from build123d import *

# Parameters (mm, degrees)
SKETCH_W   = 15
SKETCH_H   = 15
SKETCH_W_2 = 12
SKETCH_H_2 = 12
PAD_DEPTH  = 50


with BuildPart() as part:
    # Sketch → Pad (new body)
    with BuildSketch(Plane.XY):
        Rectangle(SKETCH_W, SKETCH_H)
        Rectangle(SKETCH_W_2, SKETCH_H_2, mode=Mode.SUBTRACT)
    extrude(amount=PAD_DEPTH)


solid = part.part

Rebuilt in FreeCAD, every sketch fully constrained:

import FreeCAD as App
import Part
import Sketcher
Q = App.Units.Quantity

doc = App.newDocument("Part")
body = doc.addObject("PartDesign::Body", "Body")

# Sketch on XY plane
sketch1 = doc.addObject("Sketcher::SketchObject", "Sketch")
body.addObject(sketch1)
sketch1.AttachmentSupport = (doc.XY_Plane, [""])
sketch1.MapMode = "FlatFace"
sketch1.addGeometry(Part.LineSegment(App.Vector(-8, 8, 0), App.Vector(-8, -8, 0)), False)
sketch1.addGeometry(Part.LineSegment(App.Vector(-8, -8, 0), App.Vector(8, -8, 0)), False)
sketch1.addGeometry(Part.LineSegment(App.Vector(8, -8, 0), App.Vector(8, 8, 0)), False)
sketch1.addGeometry(Part.LineSegment(App.Vector(8, 8, 0), App.Vector(-8, 8, 0)), False)
sketch1.addGeometry(Part.LineSegment(App.Vector(6, -6, 0), App.Vector(-6, -6, 0)), False)
sketch1.addGeometry(Part.LineSegment(App.Vector(-6, -6, 0), App.Vector(-6, 6, 0)), False)
sketch1.addGeometry(Part.LineSegment(App.Vector(-6, 6, 0), App.Vector(6, 6, 0)), False)
sketch1.addGeometry(Part.LineSegment(App.Vector(6, 6, 0), App.Vector(6, -6, 0)), False)
sketch1.addConstraint(Sketcher.Constraint("Coincident", 0, 2, 1, 1))
sketch1.addConstraint(Sketcher.Constraint("Coincident", 1, 2, 2, 1))
sketch1.addConstraint(Sketcher.Constraint("Coincident", 2, 2, 3, 1))
sketch1.addConstraint(Sketcher.Constraint("Coincident", 3, 2, 0, 1))
sketch1.addConstraint(Sketcher.Constraint("Coincident", 4, 2, 5, 1))
sketch1.addConstraint(Sketcher.Constraint("Coincident", 5, 2, 6, 1))
sketch1.addConstraint(Sketcher.Constraint("Coincident", 6, 2, 7, 1))
sketch1.addConstraint(Sketcher.Constraint("Coincident", 7, 2, 4, 1))
sketch1.addConstraint(Sketcher.Constraint("Vertical", 0))
sketch1.addConstraint(Sketcher.Constraint("Horizontal", 1))
sketch1.addConstraint(Sketcher.Constraint("Vertical", 2))
sketch1.addConstraint(Sketcher.Constraint("Horizontal", 3))
sketch1.addConstraint(Sketcher.Constraint("Horizontal", 4))
sketch1.addConstraint(Sketcher.Constraint("Vertical", 5))
sketch1.addConstraint(Sketcher.Constraint("Horizontal", 6))
sketch1.addConstraint(Sketcher.Constraint("Vertical", 7))
sketch1.addConstraint(Sketcher.Constraint("Symmetric", 0, 2, 2, 2, -1, 1))
sketch1.addConstraint(Sketcher.Constraint("Symmetric", 4, 2, 6, 2, -1, 1))
sketch1.addConstraint(Sketcher.Constraint("Equal", 3, 0))
sketch1.addConstraint(Sketcher.Constraint("Equal", 6, 5))
sketch1.addConstraint(Sketcher.Constraint("DistanceX", 1, 1, 1, 2, Q("15 mm")))
sketch1.addConstraint(Sketcher.Constraint("DistanceX", 4, 2, 4, 1, Q("12 mm")))
pad1 = doc.addObject("PartDesign::Pad", "Pad")
body.addObject(pad1)
pad1.Profile = sketch1
pad1.Length = 50

doc.recompute()
